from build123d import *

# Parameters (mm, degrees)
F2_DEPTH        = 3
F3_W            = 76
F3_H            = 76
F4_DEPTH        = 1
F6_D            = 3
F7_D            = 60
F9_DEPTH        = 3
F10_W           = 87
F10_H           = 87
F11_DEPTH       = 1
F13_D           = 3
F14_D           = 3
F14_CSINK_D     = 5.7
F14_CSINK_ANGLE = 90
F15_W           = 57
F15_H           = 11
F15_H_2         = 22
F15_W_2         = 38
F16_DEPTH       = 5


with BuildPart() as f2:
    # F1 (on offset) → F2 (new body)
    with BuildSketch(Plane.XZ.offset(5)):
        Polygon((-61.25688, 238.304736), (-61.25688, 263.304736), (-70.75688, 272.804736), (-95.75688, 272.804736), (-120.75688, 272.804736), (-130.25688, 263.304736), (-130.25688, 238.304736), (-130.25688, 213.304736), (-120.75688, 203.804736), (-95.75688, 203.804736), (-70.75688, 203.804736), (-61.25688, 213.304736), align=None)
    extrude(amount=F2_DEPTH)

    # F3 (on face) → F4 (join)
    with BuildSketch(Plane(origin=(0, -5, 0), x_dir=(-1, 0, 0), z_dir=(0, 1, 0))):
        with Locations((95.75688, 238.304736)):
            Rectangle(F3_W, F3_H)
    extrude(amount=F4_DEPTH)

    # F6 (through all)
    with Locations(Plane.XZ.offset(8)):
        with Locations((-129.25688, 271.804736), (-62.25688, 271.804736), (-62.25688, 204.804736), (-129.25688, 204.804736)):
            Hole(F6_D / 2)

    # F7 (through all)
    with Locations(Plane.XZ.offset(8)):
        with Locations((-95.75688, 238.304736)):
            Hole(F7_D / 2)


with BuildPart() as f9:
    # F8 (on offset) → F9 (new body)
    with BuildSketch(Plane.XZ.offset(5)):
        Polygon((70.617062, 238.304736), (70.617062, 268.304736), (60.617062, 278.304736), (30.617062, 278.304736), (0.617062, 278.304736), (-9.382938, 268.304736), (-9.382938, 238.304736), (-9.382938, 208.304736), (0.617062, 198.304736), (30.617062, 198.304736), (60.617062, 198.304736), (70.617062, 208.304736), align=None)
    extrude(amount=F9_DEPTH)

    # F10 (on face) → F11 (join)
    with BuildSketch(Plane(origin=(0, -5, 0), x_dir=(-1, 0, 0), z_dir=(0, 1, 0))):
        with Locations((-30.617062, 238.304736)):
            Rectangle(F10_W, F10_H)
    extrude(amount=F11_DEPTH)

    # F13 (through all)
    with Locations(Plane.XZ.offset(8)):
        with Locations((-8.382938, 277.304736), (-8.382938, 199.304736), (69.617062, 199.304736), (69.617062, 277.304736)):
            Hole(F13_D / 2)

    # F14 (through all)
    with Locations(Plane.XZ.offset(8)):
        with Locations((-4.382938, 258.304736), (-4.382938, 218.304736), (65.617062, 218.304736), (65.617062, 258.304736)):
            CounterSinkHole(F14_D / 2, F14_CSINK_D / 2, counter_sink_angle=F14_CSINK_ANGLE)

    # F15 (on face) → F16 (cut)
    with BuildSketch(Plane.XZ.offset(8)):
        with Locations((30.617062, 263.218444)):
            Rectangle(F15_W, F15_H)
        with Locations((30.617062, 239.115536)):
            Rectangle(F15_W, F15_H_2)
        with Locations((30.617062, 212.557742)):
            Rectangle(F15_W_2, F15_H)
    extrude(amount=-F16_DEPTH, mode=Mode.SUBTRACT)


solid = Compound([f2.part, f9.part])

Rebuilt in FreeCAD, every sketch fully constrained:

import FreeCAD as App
import Part
import Sketcher
Q = App.Units.Quantity


def add_polygon(sketch, points):
    """Adds a closed chain of lines whose ends are joined by coincident constraints."""
    first, n = sketch.GeometryCount, len(points)
    for a, b in zip(points, points[1:] + points[:1]):
        sketch.addGeometry(Part.LineSegment(App.Vector(*a, 0), App.Vector(*b, 0)), False)
    for i in range(n):
        sketch.addConstraint(Sketcher.Constraint("Coincident", first + i, 2, first + (i + 1) % n, 1))

doc = App.newDocument("Part")
body = doc.addObject("PartDesign::Body", "Body")

sketch1 = doc.addObject("Sketcher::SketchObject", "Sketch")
body.addObject(sketch1)
sketch1.AttachmentSupport = (doc.XZ_Plane, [""])
sketch1.MapMode = "FlatFace"
sketch1.AttachmentOffset = App.Placement(App.Vector(0, 0, 5), App.Rotation())
add_polygon(sketch1, [(-61.25688, 263.304736), (-70.75688, 272.804736), (-120.75688, 272.804736), (-130.25688, 263.304736), (-130.25688, 213.304736), (-120.75688, 203.804736), (-70.75688, 203.804736), (-61.25688, 213.304736)])
sketch1.addConstraint([
    Sketcher.Constraint("Horizontal", 1),
    Sketcher.Constraint("Vertical", 3),
    Sketcher.Constraint("Horizontal", 5),
    Sketcher.Constraint("Vertical", 7),
    Sketcher.Constraint("Perpendicular", 0, 2),
    Sketcher.Constraint("Perpendicular", 2, 4),
    Sketcher.Constraint("Perpendicular", 4, 6),
    Sketcher.Constraint("Horizontal", 3, 2, 6, 2),
    Sketcher.Constraint("Horizontal", 2, 2, 7, 2),
    Sketcher.Constraint("Vertical", 1, 2, 4, 2),
    Sketcher.Constraint("Vertical", 0, 2, 5, 2),
    Sketcher.Constraint("Equal", 5, 3),
    Sketcher.Constraint("DistanceX", 1, 2, 1, 1, Q("50 mm")),
    Sketcher.Constraint("DistanceY", 4, 2, 1, 2, Q("69 mm")),
    Sketcher.Constraint("DistanceX", 0, 2, -1, 1, Q("70.75688 mm")),
    Sketcher.Constraint("DistanceY", -1, 1, 0, 2, Q("272.804736 mm")),
])
pad1 = doc.addObject("PartDesign::Pad", "Pad")
body.addObject(pad1)
pad1.Profile = sketch1
pad1.Length = 3

sketch2 = doc.addObject("Sketcher::SketchObject", "Sketch001")
body.addObject(sketch2)
sketch2.AttachmentSupport = (doc.XZ_Plane, [""])
sketch2.MapMode = "FlatFace"
sketch2.AttachmentOffset = App.Placement(App.Vector(0, 0, 5), App.Rotation())
add_polygon(sketch2, [(-57.75688, 276.304736), (-57.75688, 200.304736), (-133.75688, 200.304736), (-133.75688, 276.304736)])
sketch2.addConstraint([
    Sketcher.Constraint("Vertical", 0),
    Sketcher.Constraint("Horizontal", 1),
    Sketcher.Constraint("Vertical", 2),
    Sketcher.Constraint("Horizontal", 3),
    Sketcher.Constraint("Equal", 3, 0),
    Sketcher.Constraint("DistanceX", 1, 2, 1, 1, Q("76 mm")),
    Sketcher.Constraint("DistanceX", 0, 2, -1, 1, Q("57.75688 mm")),
    Sketcher.Constraint("DistanceY", -1, 1, 0, 2, Q("200.304736 mm")),
])
pad2 = doc.addObject("PartDesign::Pad", "Pad001")
body.addObject(pad2)
pad2.Profile = sketch2
pad2.Length = 1
pad2.Reversed = True

sketch3 = doc.addObject("Sketcher::SketchObject", "Sketch002")
body.addObject(sketch3)
sketch3.AttachmentSupport = (doc.XZ_Plane, [""])
sketch3.MapMode = "FlatFace"
sketch3.AttachmentOffset = App.Placement(App.Vector(0, 0, 8), App.Rotation())
sketch3.addGeometry([
    Part.Circle(App.Vector(-129.25688, 271.804736, 0), App.Vector(0, 0, 1), 1.5),
    Part.Circle(App.Vector(-62.25688, 271.804736, 0), App.Vector(0, 0, 1), 1.5),
    Part.Circle(App.Vector(-62.25688, 204.804736, 0), App.Vector(0, 0, 1), 1.5),
    Part.Circle(App.Vector(-129.25688, 204.804736, 0), App.Vector(0, 0, 1), 1.5),
], False)
sketch3.addConstraint([
    Sketcher.Constraint("Equal", 0, 1),
    Sketcher.Constraint("Equal", 1, 2),
    Sketcher.Constraint("Equal", 2, 3),
    Sketcher.Constraint("Horizontal", 0, 3, 1, 3),
    Sketcher.Constraint("Horizontal", 2, 3, 3, 3),
    Sketcher.Constraint("Vertical", 1, 3, 2, 3),
    Sketcher.Constraint("Vertical", 0, 3, 3, 3),
    Sketcher.Constraint("Diameter", 0, Q("3 mm")),
    Sketcher.Constraint("DistanceX", 0, 3, 1, 3, Q("67 mm")),
    Sketcher.Constraint("DistanceY", 2, 3, 1, 3, Q("67 mm")),
    Sketcher.Constraint("DistanceX", 0, 3, -1, 1, Q("129.25688 mm")),
    Sketcher.Constraint("DistanceY", -1, 1, 0, 3, Q("271.804736 mm")),
])
doc.recompute()
hole = doc.addObject("PartDesign::Hole", "Hole")
body.addObject(hole)
hole.Profile = sketch3
hole.ThreadType = "None"
hole.Diameter = 3
hole.DepthType = "ThroughAll"

sketch4 = doc.addObject("Sketcher::SketchObject", "Sketch003")
body.addObject(sketch4)
sketch4.AttachmentSupport = (doc.XZ_Plane, [""])
sketch4.MapMode = "FlatFace"
sketch4.AttachmentOffset = App.Placement(App.Vector(0, 0, 8), App.Rotation())
sketch4.addGeometry(Part.Circle(App.Vector(-95.75688, 238.304736, 0), App.Vector(0, 0, 1), 30), False)
sketch4.addConstraint([
    Sketcher.Constraint("Diameter", 0, Q("60 mm")),
    Sketcher.Constraint("DistanceX", 0, 3, -1, 1, Q("95.75688 mm")),
    Sketcher.Constraint("DistanceY", -1, 1, 0, 3, Q("238.304736 mm")),
])
doc.recompute()
hole2 = doc.addObject("PartDesign::Hole", "Hole001")
body.addObject(hole2)
hole2.Profile = sketch4
hole2.ThreadType = "None"
hole2.Diameter = 60
hole2.DepthType = "ThroughAll"
body2 = doc.addObject("PartDesign::Body", "Body001")

sketch5 = doc.addObject("Sketcher::SketchObject", "Sketch004")
body2.addObject(sketch5)
sketch5.AttachmentSupport = (doc.getObject("XZ_Plane001"), [""])
sketch5.MapMode = "FlatFace"
sketch5.AttachmentOffset = App.Placement(App.Vector(0, 0, 5), App.Rotation())
add_polygon(sketch5, [(70.617062, 268.304736), (60.617062, 278.304736), (0.617062, 278.304736), (-9.382938, 268.304736), (-9.382938, 208.304736), (0.617062, 198.304736), (60.617062, 198.304736), (70.617062, 208.304736)])
sketch5.addConstraint([
    Sketcher.Constraint("Horizontal", 1),
    Sketcher.Constraint("Vertical", 3),
    Sketcher.Constraint("Horizontal", 5),
    Sketcher.Constraint("Vertical", 7),
    Sketcher.Constraint("Perpendicular", 0, 2),
    Sketcher.Constraint("Perpendicular", 2, 4),
    Sketcher.Constraint("Perpendicular", 4, 6),
    Sketcher.Constraint("Horizontal", 3, 2, 6, 2),
    Sketcher.Constraint("Horizontal", 2, 2, 7, 2),
    Sketcher.Constraint("Vertical", 1, 2, 4, 2),
    Sketcher.Constraint("Vertical", 0, 2, 5, 2),
    Sketcher.Constraint("Equal", 5, 3),
    Sketcher.Constraint("DistanceX", 1, 2, 1, 1, Q("60 mm")),
    Sketcher.Constraint("DistanceX", 2, 2, 1, 2, Q("10 mm")),
    Sketcher.Constraint("DistanceX", -1, 1, 0, 2, Q("60.617062 mm")),
    Sketcher.Constraint("DistanceY", -1, 1, 0, 2, Q("278.304736 mm")),
])
pad3 = doc.addObject("PartDesign::Pad", "Pad002")
body2.addObject(pad3)
pad3.Profile = sketch5
pad3.Length = 3

sketch6 = doc.addObject("Sketcher::SketchObject", "Sketch005")
body2.addObject(sketch6)
sketch6.AttachmentSupport = (doc.getObject("XZ_Plane001"), [""])
sketch6.MapMode = "FlatFace"
sketch6.AttachmentOffset = App.Placement(App.Vector(0, 0, 5), App.Rotation())
add_polygon(sketch6, [(74.117062, 281.804736), (74.117062, 194.804736), (-12.882938, 194.804736), (-12.882938, 281.804736)])
sketch6.addConstraint([
    Sketcher.Constraint("Vertical", 0),
    Sketcher.Constraint("Horizontal", 1),
    Sketcher.Constraint("Vertical", 2),
    Sketcher.Constraint("Horizontal", 3),
    Sketcher.Constraint("Equal", 3, 0),
    Sketcher.Constraint("DistanceX", 1, 2, 1, 1, Q("87 mm")),
    Sketcher.Constraint("DistanceX", -1, 1, 0, 2, Q("74.117062 mm")),
    Sketcher.Constraint("DistanceY", -1, 1, 0, 2, Q("194.804736 mm")),
])
pad4 = doc.addObject("PartDesign::Pad", "Pad003")
body2.addObject(pad4)
pad4.Profile = sketch6
pad4.Length = 1
pad4.Reversed = True

sketch7 = doc.addObject("Sketcher::SketchObject", "Sketch006")
body2.addObject(sketch7)
sketch7.AttachmentSupport = (doc.getObject("XZ_Plane001"), [""])
sketch7.MapMode = "FlatFace"
sketch7.AttachmentOffset = App.Placement(App.Vector(0, 0, 8), App.Rotation())
sketch7.addGeometry([
    Part.Circle(App.Vector(-8.382938, 277.304736, 0), App.Vector(0, 0, 1), 1.5),
    Part.Circle(App.Vector(-8.382938, 199.304736, 0), App.Vector(0, 0, 1), 1.5),
    Part.Circle(App.Vector(69.617062, 199.304736, 0), App.Vector(0, 0, 1), 1.5),
    Part.Circle(App.Vector(69.617062, 277.304736, 0), App.Vector(0, 0, 1), 1.5),
], False)
sketch7.addConstraint([
    Sketcher.Constraint("Equal", 0, 1),
    Sketcher.Constraint("Equal", 1, 2),
    Sketcher.Constraint("Equal", 2, 3),
    Sketcher.Constraint("Horizontal", 1, 3, 2, 3),
    Sketcher.Constraint("Horizontal", 0, 3, 3, 3),
    Sketcher.Constraint("Vertical", 0, 3, 1, 3),
    Sketcher.Constraint("Vertical", 2, 3, 3, 3),
    Sketcher.Constraint("Diameter", 0, Q("3 mm")),
    Sketcher.Constraint("DistanceY", 1, 3, 0, 3, Q("78 mm")),
    Sketcher.Constraint("DistanceX", 1, 3, 2, 3, Q("78 mm")),
    Sketcher.Constraint("DistanceX", 0, 3, -1, 1, Q("8.382938 mm")),
    Sketcher.Constraint("DistanceY", -1, 1, 0, 3, Q("277.304736 mm")),
])
doc.recompute()
hole3 = doc.addObject("PartDesign::Hole", "Hole002")
body2.addObject(hole3)
hole3.Profile = sketch7
hole3.ThreadType = "None"
hole3.Diameter = 3
hole3.DepthType = "ThroughAll"

sketch8 = doc.addObject("Sketcher::SketchObject", "Sketch007")
body2.addObject(sketch8)
sketch8.AttachmentSupport = (doc.getObject("XZ_Plane001"), [""])
sketch8.MapMode = "FlatFace"
sketch8.AttachmentOffset = App.Placement(App.Vector(0, 0, 8), App.Rotation())
sketch8.addGeometry([
    Part.Circle(App.Vector(-4.382938, 258.304736, 0), App.Vector(0, 0, 1), 1.5),
    Part.Circle(App.Vector(-4.382938, 218.304736, 0), App.Vector(0, 0, 1), 1.5),
    Part.Circle(App.Vector(65.617062, 218.304736, 0), App.Vector(0, 0, 1), 1.5),
    Part.Circle(App.Vector(65.617062, 258.304736, 0), App.Vector(0, 0, 1), 1.5),
], False)
sketch8.addConstraint([
    Sketcher.Constraint("Equal", 0, 1),
    Sketcher.Constraint("Equal", 1, 2),
    Sketcher.Constraint("Equal", 2, 3),
    Sketcher.Constraint("Horizontal", 1, 3, 2, 3),
    Sketcher.Constraint("Horizontal", 0, 3, 3, 3),
    Sketcher.Constraint("Vertical", 0, 3, 1, 3),
    Sketcher.Constraint("Vertical", 2, 3, 3, 3),
    Sketcher.Constraint("Diameter", 0, Q("3 mm")),
    Sketcher.Constraint("DistanceY", 1, 3, 0, 3, Q("40 mm")),
    Sketcher.Constraint("DistanceX", 1, 3, 2, 3, Q("70 mm")),
    Sketcher.Constraint("DistanceX", 0, 3, -1, 1, Q("4.382938 mm")),
    Sketcher.Constraint("DistanceY", -1, 1, 0, 3, Q("258.304736 mm")),
])
doc.recompute()
hole4 = doc.addObject("PartDesign::Hole", "Hole003")
body2.addObject(hole4)
hole4.Profile = sketch8
hole4.ThreadType = "None"
hole4.Diameter = 3
hole4.DepthType = "ThroughAll"
hole4.HoleCutType = "Countersink"
hole4.HoleCutDiameter = 5.7
hole4.HoleCutCountersinkAngle = 90

sketch9 = doc.addObject("Sketcher::SketchObject", "Sketch008")
body2.addObject(sketch9)
sketch9.AttachmentSupport = (doc.getObject("XZ_Plane001"), [""])
sketch9.MapMode = "FlatFace"
sketch9.AttachmentOffset = App.Placement(App.Vector(0, 0, 8), App.Rotation())
add_polygon(sketch9, [(2.117062, 268.718444), (2.117062, 257.718444), (59.117062, 257.718444), (59.117062, 268.718444)])
add_polygon(sketch9, [(2.117062, 250.115536), (2.117062, 228.115536), (59.117062, 228.115536), (59.117062, 250.115536)])
add_polygon(sketch9, [(11.617062, 218.057742), (11.617062, 207.057742), (49.617062, 207.057742), (49.617062, 218.057742)])
sketch9.addConstraint([
    Sketcher.Constraint("Vertical", 0),
    Sketcher.Constraint("Horizontal", 1),
    Sketcher.Constraint("Vertical", 2),
    Sketcher.Constraint("Horizontal", 3),
    Sketcher.Constraint("Vertical", 4),
    Sketcher.Constraint("Horizontal", 5),
    Sketcher.Constraint("Vertical", 6),
    Sketcher.Constraint("Horizontal", 7),
    Sketcher.Constraint("Vertical", 8),
    Sketcher.Constraint("Horizontal", 9),
    Sketcher.Constraint("Vertical", 10),
    Sketcher.Constraint("Horizontal", 11),
    Sketcher.Constraint("Vertical", 3, 2, 4, 2),
    Sketcher.Constraint("Vertical", 2, 2, 5, 2),
    Sketcher.Constraint("Equal", 2, 8),
    Sketcher.Constraint("DistanceX", 1, 1, 1, 2, Q("57 mm")),
    Sketcher.Constraint("DistanceX", 9, 1, 9, 2, Q("38 mm")),
    Sketcher.Constraint("DistanceY", 0, 2, 0, 1, Q("11 mm")),
    Sketcher.Constraint("DistanceY", 4, 2, 4, 1, Q("22 mm")),
    Sketcher.Constraint("DistanceX", 4, 2, 8, 2, Q("9.5 mm")),
    Sketcher.Constraint("DistanceY", 8, 2, 0, 2, Q("50.660702 mm")),
    Sketcher.Constraint("DistanceX", -1, 1, 1, 2, Q("59.117062 mm")),
    Sketcher.Constraint("DistanceY", -1, 1, 8, 2, Q("207.057742 mm")),
    Sketcher.Constraint("DistanceY", -1, 1, 4, 2, Q("228.115536 mm")),
])
pocket1 = doc.addObject("PartDesign::Pocket", "Pocket")
body2.addObject(pocket1)
pocket1.Profile = sketch9
pocket1.Length = 5

doc.recompute()
